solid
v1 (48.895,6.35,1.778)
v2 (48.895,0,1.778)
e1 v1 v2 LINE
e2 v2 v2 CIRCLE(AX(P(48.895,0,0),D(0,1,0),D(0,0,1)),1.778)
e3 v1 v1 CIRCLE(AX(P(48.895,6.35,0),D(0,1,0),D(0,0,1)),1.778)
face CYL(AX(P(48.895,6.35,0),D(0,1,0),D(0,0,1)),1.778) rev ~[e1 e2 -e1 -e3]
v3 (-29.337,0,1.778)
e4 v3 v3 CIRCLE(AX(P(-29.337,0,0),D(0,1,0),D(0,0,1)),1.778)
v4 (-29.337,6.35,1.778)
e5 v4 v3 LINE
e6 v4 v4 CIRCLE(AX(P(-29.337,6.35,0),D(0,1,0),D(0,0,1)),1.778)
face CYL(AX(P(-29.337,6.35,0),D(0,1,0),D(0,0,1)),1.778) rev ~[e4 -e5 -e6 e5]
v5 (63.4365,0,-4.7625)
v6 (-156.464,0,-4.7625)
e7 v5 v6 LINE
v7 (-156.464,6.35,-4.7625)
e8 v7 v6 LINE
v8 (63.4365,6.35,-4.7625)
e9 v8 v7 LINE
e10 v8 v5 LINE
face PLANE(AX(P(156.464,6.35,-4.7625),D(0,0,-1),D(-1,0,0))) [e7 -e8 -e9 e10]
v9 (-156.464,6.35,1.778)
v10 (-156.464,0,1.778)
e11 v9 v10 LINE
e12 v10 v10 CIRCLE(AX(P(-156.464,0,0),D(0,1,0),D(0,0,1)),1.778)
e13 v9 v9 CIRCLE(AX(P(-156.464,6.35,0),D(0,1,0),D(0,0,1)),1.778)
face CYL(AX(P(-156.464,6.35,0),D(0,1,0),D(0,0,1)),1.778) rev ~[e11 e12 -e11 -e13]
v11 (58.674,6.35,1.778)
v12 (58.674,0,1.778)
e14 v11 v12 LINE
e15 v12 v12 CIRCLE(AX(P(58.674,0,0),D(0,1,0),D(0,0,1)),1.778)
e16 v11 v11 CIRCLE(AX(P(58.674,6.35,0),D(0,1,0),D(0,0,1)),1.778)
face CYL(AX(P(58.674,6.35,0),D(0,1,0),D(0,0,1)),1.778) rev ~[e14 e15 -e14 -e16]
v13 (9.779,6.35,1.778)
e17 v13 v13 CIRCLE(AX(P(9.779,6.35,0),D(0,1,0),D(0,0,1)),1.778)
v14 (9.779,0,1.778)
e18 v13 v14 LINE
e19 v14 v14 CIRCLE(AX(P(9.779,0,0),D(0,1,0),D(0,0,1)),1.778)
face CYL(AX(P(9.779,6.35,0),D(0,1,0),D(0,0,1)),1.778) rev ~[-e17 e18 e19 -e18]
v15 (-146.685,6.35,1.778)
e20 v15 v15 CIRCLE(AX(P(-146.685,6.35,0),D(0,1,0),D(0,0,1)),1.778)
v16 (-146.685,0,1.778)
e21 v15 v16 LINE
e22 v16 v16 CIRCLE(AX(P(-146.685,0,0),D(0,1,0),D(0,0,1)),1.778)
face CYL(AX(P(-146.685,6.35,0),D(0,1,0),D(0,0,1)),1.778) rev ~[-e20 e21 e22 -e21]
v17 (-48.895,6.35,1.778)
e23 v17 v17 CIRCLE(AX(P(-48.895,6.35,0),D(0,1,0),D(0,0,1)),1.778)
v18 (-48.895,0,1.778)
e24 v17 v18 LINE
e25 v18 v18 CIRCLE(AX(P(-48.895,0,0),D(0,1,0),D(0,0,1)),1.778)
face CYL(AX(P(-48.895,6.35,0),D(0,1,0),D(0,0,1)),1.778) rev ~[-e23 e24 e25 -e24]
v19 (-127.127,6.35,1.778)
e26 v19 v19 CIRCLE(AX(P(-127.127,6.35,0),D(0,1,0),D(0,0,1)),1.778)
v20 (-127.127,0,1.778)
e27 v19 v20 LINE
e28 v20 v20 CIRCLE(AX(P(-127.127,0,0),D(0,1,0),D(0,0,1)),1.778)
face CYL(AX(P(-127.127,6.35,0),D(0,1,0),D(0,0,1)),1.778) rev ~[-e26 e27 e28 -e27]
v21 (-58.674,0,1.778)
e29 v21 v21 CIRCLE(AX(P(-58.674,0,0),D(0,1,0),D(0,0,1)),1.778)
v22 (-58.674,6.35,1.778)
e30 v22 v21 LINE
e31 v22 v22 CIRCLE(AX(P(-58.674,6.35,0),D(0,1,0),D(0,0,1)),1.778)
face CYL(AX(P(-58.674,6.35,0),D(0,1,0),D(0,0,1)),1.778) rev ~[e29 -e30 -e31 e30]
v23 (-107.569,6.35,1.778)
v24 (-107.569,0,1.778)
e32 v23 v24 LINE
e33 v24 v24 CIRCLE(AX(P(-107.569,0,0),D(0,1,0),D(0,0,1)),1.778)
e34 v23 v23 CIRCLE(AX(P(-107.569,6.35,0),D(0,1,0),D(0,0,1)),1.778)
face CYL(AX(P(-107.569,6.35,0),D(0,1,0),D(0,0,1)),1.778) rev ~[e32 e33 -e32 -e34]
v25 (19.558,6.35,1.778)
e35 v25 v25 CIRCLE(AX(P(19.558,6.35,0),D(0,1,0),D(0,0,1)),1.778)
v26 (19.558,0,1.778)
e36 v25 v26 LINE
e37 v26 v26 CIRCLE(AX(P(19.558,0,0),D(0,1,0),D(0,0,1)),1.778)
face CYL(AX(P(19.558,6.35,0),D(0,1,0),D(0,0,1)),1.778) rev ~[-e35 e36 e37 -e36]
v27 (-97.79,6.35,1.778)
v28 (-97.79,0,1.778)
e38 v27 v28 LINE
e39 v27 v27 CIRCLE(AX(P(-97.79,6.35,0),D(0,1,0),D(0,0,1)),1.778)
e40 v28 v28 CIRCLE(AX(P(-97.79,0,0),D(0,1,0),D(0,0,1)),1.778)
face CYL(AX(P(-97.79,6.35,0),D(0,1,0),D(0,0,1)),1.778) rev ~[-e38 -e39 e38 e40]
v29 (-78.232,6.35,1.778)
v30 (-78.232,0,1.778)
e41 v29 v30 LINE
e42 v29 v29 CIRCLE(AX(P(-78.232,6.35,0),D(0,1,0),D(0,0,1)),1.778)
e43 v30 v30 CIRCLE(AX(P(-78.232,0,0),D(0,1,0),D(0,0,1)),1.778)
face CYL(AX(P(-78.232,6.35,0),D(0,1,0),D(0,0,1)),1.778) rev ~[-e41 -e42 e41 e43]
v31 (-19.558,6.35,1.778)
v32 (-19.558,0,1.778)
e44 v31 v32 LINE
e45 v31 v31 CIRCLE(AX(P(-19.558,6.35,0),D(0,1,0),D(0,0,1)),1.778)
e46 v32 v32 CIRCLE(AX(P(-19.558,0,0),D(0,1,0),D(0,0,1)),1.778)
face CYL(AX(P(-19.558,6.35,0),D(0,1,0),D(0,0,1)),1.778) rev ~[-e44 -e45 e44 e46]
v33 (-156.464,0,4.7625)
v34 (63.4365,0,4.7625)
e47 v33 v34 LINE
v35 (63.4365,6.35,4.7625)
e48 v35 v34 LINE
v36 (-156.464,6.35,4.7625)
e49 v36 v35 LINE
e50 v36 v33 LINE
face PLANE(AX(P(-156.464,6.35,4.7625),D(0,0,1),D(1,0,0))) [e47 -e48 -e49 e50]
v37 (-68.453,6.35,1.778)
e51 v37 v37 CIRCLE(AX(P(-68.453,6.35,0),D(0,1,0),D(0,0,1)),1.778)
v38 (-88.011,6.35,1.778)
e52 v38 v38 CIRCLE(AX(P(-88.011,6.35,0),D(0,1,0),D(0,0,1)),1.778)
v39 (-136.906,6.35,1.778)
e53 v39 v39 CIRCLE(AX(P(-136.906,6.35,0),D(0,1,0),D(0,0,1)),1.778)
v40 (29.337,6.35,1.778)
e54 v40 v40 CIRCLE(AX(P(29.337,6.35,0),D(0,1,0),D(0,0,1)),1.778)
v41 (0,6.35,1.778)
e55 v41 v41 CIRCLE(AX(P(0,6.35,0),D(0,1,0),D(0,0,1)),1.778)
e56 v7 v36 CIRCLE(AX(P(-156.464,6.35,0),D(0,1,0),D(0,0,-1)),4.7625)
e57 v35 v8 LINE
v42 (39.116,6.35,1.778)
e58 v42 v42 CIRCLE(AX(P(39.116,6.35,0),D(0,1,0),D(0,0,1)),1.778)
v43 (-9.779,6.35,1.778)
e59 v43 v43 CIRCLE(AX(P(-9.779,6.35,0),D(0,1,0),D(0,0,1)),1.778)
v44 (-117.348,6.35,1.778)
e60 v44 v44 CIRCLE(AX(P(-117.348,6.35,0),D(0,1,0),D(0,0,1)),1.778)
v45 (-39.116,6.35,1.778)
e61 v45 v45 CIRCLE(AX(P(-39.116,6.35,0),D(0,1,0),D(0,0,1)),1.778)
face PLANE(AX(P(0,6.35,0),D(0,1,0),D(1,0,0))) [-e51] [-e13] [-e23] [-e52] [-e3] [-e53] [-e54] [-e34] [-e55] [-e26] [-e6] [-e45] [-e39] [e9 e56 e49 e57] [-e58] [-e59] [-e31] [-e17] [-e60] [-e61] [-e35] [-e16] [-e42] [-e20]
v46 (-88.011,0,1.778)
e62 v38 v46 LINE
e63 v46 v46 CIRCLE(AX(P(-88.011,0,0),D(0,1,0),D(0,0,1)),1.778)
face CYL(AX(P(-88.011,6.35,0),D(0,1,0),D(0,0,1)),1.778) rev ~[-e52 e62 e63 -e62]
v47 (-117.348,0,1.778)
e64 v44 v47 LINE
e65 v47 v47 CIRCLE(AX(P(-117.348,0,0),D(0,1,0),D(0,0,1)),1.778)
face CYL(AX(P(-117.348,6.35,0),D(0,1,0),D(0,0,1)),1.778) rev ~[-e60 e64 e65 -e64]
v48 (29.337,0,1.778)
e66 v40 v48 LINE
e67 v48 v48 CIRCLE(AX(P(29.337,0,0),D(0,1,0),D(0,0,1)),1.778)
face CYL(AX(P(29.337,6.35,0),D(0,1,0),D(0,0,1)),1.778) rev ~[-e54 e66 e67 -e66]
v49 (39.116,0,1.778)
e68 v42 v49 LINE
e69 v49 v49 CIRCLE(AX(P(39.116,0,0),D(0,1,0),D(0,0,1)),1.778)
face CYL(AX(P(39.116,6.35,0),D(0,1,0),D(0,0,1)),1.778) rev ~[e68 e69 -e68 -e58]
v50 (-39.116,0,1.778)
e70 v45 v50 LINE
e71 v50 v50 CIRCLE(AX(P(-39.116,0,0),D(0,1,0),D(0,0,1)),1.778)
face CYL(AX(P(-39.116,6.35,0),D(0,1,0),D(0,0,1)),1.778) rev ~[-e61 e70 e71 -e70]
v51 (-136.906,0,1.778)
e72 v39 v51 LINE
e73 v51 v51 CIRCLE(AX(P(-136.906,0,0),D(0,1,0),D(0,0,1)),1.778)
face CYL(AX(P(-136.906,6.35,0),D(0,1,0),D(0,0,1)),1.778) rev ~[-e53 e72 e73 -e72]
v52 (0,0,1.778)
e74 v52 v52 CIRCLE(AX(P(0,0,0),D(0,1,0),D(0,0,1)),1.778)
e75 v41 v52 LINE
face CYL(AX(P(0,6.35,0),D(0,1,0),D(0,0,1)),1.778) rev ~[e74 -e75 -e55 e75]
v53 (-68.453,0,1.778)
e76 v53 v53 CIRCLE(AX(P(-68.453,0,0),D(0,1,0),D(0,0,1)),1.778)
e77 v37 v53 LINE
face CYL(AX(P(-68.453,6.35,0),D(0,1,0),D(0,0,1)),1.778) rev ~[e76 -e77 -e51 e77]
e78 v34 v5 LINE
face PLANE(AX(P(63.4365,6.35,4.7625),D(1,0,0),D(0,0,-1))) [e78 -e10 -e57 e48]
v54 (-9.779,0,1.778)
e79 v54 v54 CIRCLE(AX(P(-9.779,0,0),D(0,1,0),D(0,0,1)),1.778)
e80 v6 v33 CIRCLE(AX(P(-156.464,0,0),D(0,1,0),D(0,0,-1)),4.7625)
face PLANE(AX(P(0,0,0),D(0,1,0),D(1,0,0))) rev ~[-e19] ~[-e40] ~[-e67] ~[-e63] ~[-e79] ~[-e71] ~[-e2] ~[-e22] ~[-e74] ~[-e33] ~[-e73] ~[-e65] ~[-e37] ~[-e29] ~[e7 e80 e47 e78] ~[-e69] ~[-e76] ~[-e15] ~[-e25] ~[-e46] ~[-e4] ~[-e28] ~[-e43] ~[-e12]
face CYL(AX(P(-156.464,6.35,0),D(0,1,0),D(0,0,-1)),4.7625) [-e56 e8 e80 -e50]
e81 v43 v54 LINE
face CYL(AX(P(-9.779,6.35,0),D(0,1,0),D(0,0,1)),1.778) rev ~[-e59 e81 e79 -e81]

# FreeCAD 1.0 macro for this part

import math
import FreeCAD as App
import Part
import Sketcher

V = App.Vector
Q = App.Units.Quantity

doc = App.newDocument("Part")
body = doc.addObject("PartDesign::Body", "Body")

sketch1 = doc.addObject("Sketcher::SketchObject", "Sketch")
body.addObject(sketch1)
sketch1.AttachmentSupport = (doc.XZ_Plane, [""])
sketch1.MapMode = "FlatFace"
sketch1.AttachmentOffset = App.Placement(V(0, 0, -0.25 * 25.4), App.Rotation())
sketch1.addGeometry([
    Part.LineSegment(V(156.5, -4.8, 0), V(-156.5, -4.8, 0)),
    Part.ArcOfCircle(Part.Circle(V(-156.5, 0, 0), V(0, 0, 1), 4.8), math.radians(90), math.radians(270)),
    Part.LineSegment(V(-156.5, 4.8, 0), V(156.5, 4.8, 0)),
    Part.ArcOfCircle(Part.Circle(V(156.5, 0, 0), V(0, 0, 1), 4.8), math.radians(-90), math.radians(90)),
    Part.Circle(V(-156.5, 0, 0), V(0, 0, 1), 1.8),
    Part.Circle(V(-146.7, 0, 0), V(0, 0, 1), 1.8),
    Part.Circle(V(-136.9, 0, 0), V(0, 0, 1), 1.8),
    Part.Circle(V(-127.1, 0, 0), V(0, 0, 1), 1.8),
    Part.Circle(V(-117.3, 0, 0), V(0, 0, 1), 1.8),
    Part.Circle(V(-107.6, 0, 0), V(0, 0, 1), 1.8),
    Part.Circle(V(-97.8, 0, 0), V(0, 0, 1), 1.8),
    Part.Circle(V(-88, 0, 0), V(0, 0, 1), 1.8),
    Part.Circle(V(-78.2, 0, 0), V(0, 0, 1), 1.8),
    Part.Circle(V(-68.5, 0, 0), V(0, 0, 1), 1.8),
    Part.Circle(V(-58.7, 0, 0), V(0, 0, 1), 1.8),
    Part.Circle(V(-48.9, 0, 0), V(0, 0, 1), 1.8),
    Part.Circle(V(-39.1, 0, 0), V(0, 0, 1), 1.8),
    Part.Circle(V(-29.3, 0, 0), V(0, 0, 1), 1.8),
    Part.Circle(V(-19.6, 0, 0), V(0, 0, 1), 1.8),
    Part.Circle(V(-9.8, 0, 0), V(0, 0, 1), 1.8),
    Part.Circle(V(0, 0, 0), V(0, 0, 1), 1.8),
    Part.Circle(V(9.8, 0, 0), V(0, 0, 1), 1.8),
    Part.Circle(V(19.6, 0, 0), V(0, 0, 1), 1.8),
    Part.Circle(V(29.3, 0, 0), V(0, 0, 1), 1.8),
    Part.Circle(V(39.1, 0, 0), V(0, 0, 1), 1.8),
    Part.Circle(V(48.9, 0, 0), V(0, 0, 1), 1.8),
    Part.Circle(V(58.7, 0, 0), V(0, 0, 1), 1.8),
    Part.Circle(V(68.5, 0, 0), V(0, 0, 1), 1.8),
    Part.Circle(V(78.2, 0, 0), V(0, 0, 1), 1.8),
    Part.Circle(V(88, 0, 0), V(0, 0, 1), 1.8),
    Part.Circle(V(97.8, 0, 0), V(0, 0, 1), 1.8),
    Part.Circle(V(107.6, 0, 0), V(0, 0, 1), 1.8),
    Part.Circle(V(117.3, 0, 0), V(0, 0, 1), 1.8),
    Part.Circle(V(127.1, 0, 0), V(0, 0, 1), 1.8),
    Part.Circle(V(136.9, 0, 0), V(0, 0, 1), 1.8),
    Part.Circle(V(146.7, 0, 0), V(0, 0, 1), 1.8),
    Part.Circle(V(156.5, 0, 0), V(0, 0, 1), 1.8),
], False)
sketch1.addConstraint([
    Sketcher.Constraint("Tangent", 0, 2, 1, 2),
    Sketcher.Constraint("Tangent", 1, 1, 2, 1),
    Sketcher.Constraint("Tangent", 2, 2, 3, 2),
    Sketcher.Constraint("Tangent", 3, 1, 0, 1),
    Sketcher.Constraint("Horizontal", 0),
    Sketcher.Constraint("Horizontal", 2),
    Sketcher.Constraint("Coincident", 20, 3, -1, 1),
    Sketcher.Constraint("Coincident", 4, 3, 1, 3),
    Sketcher.Constraint("Coincident", 36, 3, 3, 3),
    Sketcher.Constraint("Equal", 4, 5),
    Sketcher.Constraint("Equal", 5, 6),
    Sketcher.Constraint("Equal", 6, 7),
    Sketcher.Constraint("Equal", 7, 8),
    Sketcher.Constraint("Equal", 8, 9),
    Sketcher.Constraint("Equal", 9, 10),
    Sketcher.Constraint("Equal", 10, 11),
    Sketcher.Constraint("Equal", 11, 12),
    Sketcher.Constraint("Equal", 12, 13),
    Sketcher.Constraint("Equal", 13, 14),
    Sketcher.Constraint("Equal", 14, 15),
    Sketcher.Constraint("Equal", 15, 16),
    Sketcher.Constraint("Equal", 16, 17),
    Sketcher.Constraint("Equal", 17, 18),
    Sketcher.Constraint("Equal", 18, 19),
    Sketcher.Constraint("Equal", 19, 20),
    Sketcher.Constraint("Equal", 20, 21),
    Sketcher.Constraint("Equal", 21, 22),
    Sketcher.Constraint("Equal", 22, 23),
    Sketcher.Constraint("Equal", 23, 24),
    Sketcher.Constraint("Equal", 24, 25),
    Sketcher.Constraint("Equal", 25, 26),
    Sketcher.Constraint("Equal", 26, 27),
    Sketcher.Constraint("Equal", 27, 28),
    Sketcher.Constraint("Equal", 28, 29),
    Sketcher.Constraint("Equal", 29, 30),
    Sketcher.Constraint("Equal", 30, 31),
    Sketcher.Constraint("Equal", 31, 32),
    Sketcher.Constraint("Equal", 32, 33),
    Sketcher.Constraint("Equal", 33, 34),
    Sketcher.Constraint("Equal", 34, 35),
    Sketcher.Constraint("Equal", 35, 36),
    Sketcher.Constraint("Symmetric", 1, 3, 3, 3, -1, 1),
    Sketcher.Constraint("Symmetric", 19, 3, 21, 3, -1, 1),
    Sketcher.Constraint("Symmetric", 18, 3, 22, 3, -1, 1),
    Sketcher.Constraint("Symmetric", 17, 3, 23, 3, -1, 1),
    Sketcher.Constraint("Symmetric", 16, 3, 24, 3, -1, 1),
    Sketcher.Constraint("Symmetric", 15, 3, 25, 3, -1, 1),
    Sketcher.Constraint("Symmetric", 14, 3, 26, 3, -1, 1),
    Sketcher.Constraint("Symmetric", 13, 3, 27, 3, -1, 1),
    Sketcher.Constraint("Symmetric", 12, 3, 28, 3, -1, 1),
    Sketcher.Constraint("Symmetric", 11, 3, 29, 3, -1, 1),
    Sketcher.Constraint("Symmetric", 10, 3, 30, 3, -1, 1),
    Sketcher.Constraint("Symmetric", 9, 3, 31, 3, -1, 1),
    Sketcher.Constraint("Symmetric", 8, 3, 32, 3, -1, 1),
    Sketcher.Constraint("Symmetric", 7, 3, 33, 3, -1, 1),
    Sketcher.Constraint("Symmetric", 6, 3, 34, 3, -1, 1),
    Sketcher.Constraint("Symmetric", 5, 3, 35, 3, -1, 1),
    Sketcher.Constraint("PointOnObject", 5, 3, -1),
    Sketcher.Constraint("PointOnObject", 6, 3, -1),
    Sketcher.Constraint("PointOnObject", 7, 3, -1),
    Sketcher.Constraint("PointOnObject", 8, 3, -1),
    Sketcher.Constraint("PointOnObject", 9, 3, -1),
    Sketcher.Constraint("PointOnObject", 10, 3, -1),
    Sketcher.Constraint("PointOnObject", 11, 3, -1),
    Sketcher.Constraint("PointOnObject", 12, 3, -1),
    Sketcher.Constraint("PointOnObject", 13, 3, -1),
    Sketcher.Constraint("PointOnObject", 14, 3, -1),
    Sketcher.Constraint("PointOnObject", 15, 3, -1),
    Sketcher.Constraint("PointOnObject", 16, 3, -1),
    Sketcher.Constraint("PointOnObject", 17, 3, -1),
    Sketcher.Constraint("PointOnObject", 18, 3, -1),
    Sketcher.Constraint("PointOnObject", 19, 3, -1),
    Sketcher.Constraint("Diameter", 4, Q("0.14 in")),
    Sketcher.Constraint("Radius", 1, Q("0.1875 in")),
    Sketcher.Constraint("DistanceX", 0, 2, 0, 1, Q("12.32 in")),
    Sketcher.Constraint("DistanceX", 6, 3, -1, 1, Q("5.39 in")),
    Sketcher.Constraint("DistanceX", 8, 3, -1, 1, Q("4.62 in")),
    Sketcher.Constraint("DistanceX", 10, 3, -1, 1, Q("3.85 in")),
    Sketcher.Constraint("DistanceX", 12, 3, -1, 1, Q("3.08 in")),
    Sketcher.Constraint("DistanceX", 14, 3, -1, 1, Q("2.31 in")),
    Sketcher.Constraint("DistanceX", 16, 3, -1, 1, Q("1.54 in")),
    Sketcher.Constraint("DistanceX", 18, 3, -1, 1, Q("0.77 in")),
    Sketcher.Constraint("DistanceX", 5, 3, 7, 3, Q("0.77 in")),
    Sketcher.Constraint("DistanceX", 7, 3, 9, 3, Q("0.77 in")),
    Sketcher.Constraint("DistanceX", 9, 3, 11, 3, Q("0.77 in")),
    Sketcher.Constraint("DistanceX", 11, 3, 13, 3, Q("0.77 in")),
    Sketcher.Constraint("DistanceX", 13, 3, 15, 3, Q("0.77 in")),
    Sketcher.Constraint("DistanceX", 15, 3, 17, 3, Q("0.77 in")),
    Sketcher.Constraint("DistanceX", 17, 3, 19, 3, Q("0.77 in")),
    Sketcher.Constraint("DistanceX", 19, 3, 21, 3, Q("0.77 in")),
])
pad1 = doc.addObject("PartDesign::Pad", "Pad")
body.addObject(pad1)
pad1.Profile = sketch1
pad1.Length = Q("0.25 in")

sketch2 = doc.addObject("Sketcher::SketchObject", "Sketch001")
body.addObject(sketch2)
sketch2.AttachmentSupport = (doc.XZ_Plane, [""])
sketch2.MapMode = "FlatFace"
sketch2.AttachmentOffset = App.Placement(V(0, 0, -0.25 * 25.4), App.Rotation())
sketch2.addGeometry([
    Part.LineSegment(V(63, -5, 0), V(63, 5, 0)),
    Part.LineSegment(V(63, 5, 0), V(164, 5, 0)),
    Part.LineSegment(V(164, 5, 0), V(164, -5, 0)),
    Part.LineSegment(V(164, -5, 0), V(63, -5, 0)),
], False)
sketch2.addConstraint([
    Sketcher.Constraint("Coincident", 0, 2, 1, 1),
    Sketcher.Constraint("Coincident", 1, 2, 2, 1),
    Sketcher.Constraint("Coincident", 2, 2, 3, 1),
    Sketcher.Constraint("Coincident", 3, 2, 0, 1),
    Sketcher.Constraint("Vertical", 0),
    Sketcher.Constraint("Horizontal", 1),
    Sketcher.Constraint("Vertical", 2),
    Sketcher.Constraint("Horizontal", 3),
    Sketcher.Constraint("DistanceY", 0, 1, 0, 2, Q("0.375 in")),
    Sketcher.Constraint("DistanceY", -1, 1, 0, 2, Q("0.1875 in")),
    Sketcher.Constraint("DistanceX", -1, 1, 0, 2, Q("2.4975 in")),
    Sketcher.Constraint("DistanceX", 1, 1, 1, 2, Q("100.12884 mm")),
])
pocket1 = doc.addObject("PartDesign::Pocket", "Pocket")
body.addObject(pocket1)
pocket1.Profile = sketch2
pocket1.Type = "ThroughAll"
pocket1.Reversed = True

doc.recompute()
